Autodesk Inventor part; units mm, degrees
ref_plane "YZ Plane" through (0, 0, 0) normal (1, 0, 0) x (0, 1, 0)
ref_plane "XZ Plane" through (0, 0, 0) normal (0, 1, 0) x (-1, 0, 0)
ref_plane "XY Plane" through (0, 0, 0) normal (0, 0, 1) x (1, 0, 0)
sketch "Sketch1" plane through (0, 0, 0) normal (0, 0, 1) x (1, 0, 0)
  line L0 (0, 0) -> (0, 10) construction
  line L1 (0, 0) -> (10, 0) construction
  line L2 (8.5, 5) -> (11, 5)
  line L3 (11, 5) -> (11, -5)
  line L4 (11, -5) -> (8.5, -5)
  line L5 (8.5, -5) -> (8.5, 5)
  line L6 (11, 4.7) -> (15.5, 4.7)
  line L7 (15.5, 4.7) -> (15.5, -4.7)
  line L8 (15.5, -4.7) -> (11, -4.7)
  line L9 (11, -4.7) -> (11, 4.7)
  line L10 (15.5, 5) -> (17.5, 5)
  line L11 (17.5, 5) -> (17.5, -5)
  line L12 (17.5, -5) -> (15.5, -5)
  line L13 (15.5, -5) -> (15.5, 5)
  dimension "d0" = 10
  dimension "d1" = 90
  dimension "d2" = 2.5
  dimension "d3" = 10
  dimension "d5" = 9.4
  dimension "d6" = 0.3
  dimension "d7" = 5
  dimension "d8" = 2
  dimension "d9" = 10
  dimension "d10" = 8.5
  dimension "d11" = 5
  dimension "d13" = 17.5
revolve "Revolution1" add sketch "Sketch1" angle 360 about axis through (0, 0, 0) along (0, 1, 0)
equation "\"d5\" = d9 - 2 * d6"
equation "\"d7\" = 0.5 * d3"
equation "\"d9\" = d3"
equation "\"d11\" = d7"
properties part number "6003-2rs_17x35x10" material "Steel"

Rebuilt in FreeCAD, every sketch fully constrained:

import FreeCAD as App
import Part
import Sketcher

V = App.Vector


def add_polygon(sketch, points):
    """Adds a closed chain of lines whose ends are joined by coincident constraints."""
    first, n = sketch.GeometryCount, len(points)
    for a, b in zip(points, points[1:] + points[:1]):
        sketch.addGeometry(Part.LineSegment(App.Vector(*a, 0), App.Vector(*b, 0)), False)
    for i in range(n):
        sketch.addConstraint(Sketcher.Constraint("Coincident", first + i, 2, first + (i + 1) % n, 1))

doc = App.newDocument("Part")
body = doc.addObject("PartDesign::Body", "Body")

# Sketch on XY plane
sketch1 = body.newObject("Sketcher::SketchObject", "Sketch")
sketch1.AttachmentSupport = (doc.getObject("XY_Plane"), [""])
sketch1.MapMode = "FlatFace"
add_polygon(sketch1, [(11, 5), (8.5, 5), (8.5, -5), (11, -5), (11, -4.7), (15.5, -4.7), (15.5, -5), (17.5, -5), (17.5, 5), (15.5, 5), (15.5, 4.7), (11, 4.7)])  # lines 0-11
sketch1.addConstraint([
    Sketcher.Constraint("Horizontal", 0),
    Sketcher.Constraint("Vertical", 1),
    Sketcher.Constraint("Horizontal", 2),
    Sketcher.Constraint("Vertical", 3),
    Sketcher.Constraint("Horizontal", 4),
    Sketcher.Constraint("Vertical", 5),
    Sketcher.Constraint("Horizontal", 6),
    Sketcher.Constraint("Vertical", 7),
    Sketcher.Constraint("Horizontal", 8),
    Sketcher.Constraint("Vertical", 9),
    Sketcher.Constraint("Horizontal", 10),
    Sketcher.Constraint("Vertical", 11),
    Sketcher.Constraint("Symmetric", 5, 2, 8, 2, -1),
    Sketcher.Constraint("Symmetric", 3, 2, 10, 2, -1),
    Sketcher.Constraint("Horizontal", 2, 2, 5, 2),
    Sketcher.Constraint("Horizontal", 0, 2, 7, 2),
    Sketcher.Constraint("DistanceX", 6, 1, 6, 2, 2.0),
    Sketcher.Constraint("DistanceY", 1, 2, 1, 1, 10.0),
    Sketcher.Constraint("DistanceX", 0, 2, 0, 1, 2.5),
    Sketcher.Constraint("DistanceY", 3, 1, 3, 2, 0.3),
    Sketcher.Constraint("DistanceX", -1, 1, 0, 2, 8.5),
    Sketcher.Constraint("DistanceX", -1, 1, 6, 2, 17.5),
])
revolution = body.newObject("PartDesign::Revolution", "Revolution")
revolution.Profile = sketch1
revolution.ReferenceAxis = (sketch1, ["V_Axis"])
revolution.Angle = 360

doc.recompute()
